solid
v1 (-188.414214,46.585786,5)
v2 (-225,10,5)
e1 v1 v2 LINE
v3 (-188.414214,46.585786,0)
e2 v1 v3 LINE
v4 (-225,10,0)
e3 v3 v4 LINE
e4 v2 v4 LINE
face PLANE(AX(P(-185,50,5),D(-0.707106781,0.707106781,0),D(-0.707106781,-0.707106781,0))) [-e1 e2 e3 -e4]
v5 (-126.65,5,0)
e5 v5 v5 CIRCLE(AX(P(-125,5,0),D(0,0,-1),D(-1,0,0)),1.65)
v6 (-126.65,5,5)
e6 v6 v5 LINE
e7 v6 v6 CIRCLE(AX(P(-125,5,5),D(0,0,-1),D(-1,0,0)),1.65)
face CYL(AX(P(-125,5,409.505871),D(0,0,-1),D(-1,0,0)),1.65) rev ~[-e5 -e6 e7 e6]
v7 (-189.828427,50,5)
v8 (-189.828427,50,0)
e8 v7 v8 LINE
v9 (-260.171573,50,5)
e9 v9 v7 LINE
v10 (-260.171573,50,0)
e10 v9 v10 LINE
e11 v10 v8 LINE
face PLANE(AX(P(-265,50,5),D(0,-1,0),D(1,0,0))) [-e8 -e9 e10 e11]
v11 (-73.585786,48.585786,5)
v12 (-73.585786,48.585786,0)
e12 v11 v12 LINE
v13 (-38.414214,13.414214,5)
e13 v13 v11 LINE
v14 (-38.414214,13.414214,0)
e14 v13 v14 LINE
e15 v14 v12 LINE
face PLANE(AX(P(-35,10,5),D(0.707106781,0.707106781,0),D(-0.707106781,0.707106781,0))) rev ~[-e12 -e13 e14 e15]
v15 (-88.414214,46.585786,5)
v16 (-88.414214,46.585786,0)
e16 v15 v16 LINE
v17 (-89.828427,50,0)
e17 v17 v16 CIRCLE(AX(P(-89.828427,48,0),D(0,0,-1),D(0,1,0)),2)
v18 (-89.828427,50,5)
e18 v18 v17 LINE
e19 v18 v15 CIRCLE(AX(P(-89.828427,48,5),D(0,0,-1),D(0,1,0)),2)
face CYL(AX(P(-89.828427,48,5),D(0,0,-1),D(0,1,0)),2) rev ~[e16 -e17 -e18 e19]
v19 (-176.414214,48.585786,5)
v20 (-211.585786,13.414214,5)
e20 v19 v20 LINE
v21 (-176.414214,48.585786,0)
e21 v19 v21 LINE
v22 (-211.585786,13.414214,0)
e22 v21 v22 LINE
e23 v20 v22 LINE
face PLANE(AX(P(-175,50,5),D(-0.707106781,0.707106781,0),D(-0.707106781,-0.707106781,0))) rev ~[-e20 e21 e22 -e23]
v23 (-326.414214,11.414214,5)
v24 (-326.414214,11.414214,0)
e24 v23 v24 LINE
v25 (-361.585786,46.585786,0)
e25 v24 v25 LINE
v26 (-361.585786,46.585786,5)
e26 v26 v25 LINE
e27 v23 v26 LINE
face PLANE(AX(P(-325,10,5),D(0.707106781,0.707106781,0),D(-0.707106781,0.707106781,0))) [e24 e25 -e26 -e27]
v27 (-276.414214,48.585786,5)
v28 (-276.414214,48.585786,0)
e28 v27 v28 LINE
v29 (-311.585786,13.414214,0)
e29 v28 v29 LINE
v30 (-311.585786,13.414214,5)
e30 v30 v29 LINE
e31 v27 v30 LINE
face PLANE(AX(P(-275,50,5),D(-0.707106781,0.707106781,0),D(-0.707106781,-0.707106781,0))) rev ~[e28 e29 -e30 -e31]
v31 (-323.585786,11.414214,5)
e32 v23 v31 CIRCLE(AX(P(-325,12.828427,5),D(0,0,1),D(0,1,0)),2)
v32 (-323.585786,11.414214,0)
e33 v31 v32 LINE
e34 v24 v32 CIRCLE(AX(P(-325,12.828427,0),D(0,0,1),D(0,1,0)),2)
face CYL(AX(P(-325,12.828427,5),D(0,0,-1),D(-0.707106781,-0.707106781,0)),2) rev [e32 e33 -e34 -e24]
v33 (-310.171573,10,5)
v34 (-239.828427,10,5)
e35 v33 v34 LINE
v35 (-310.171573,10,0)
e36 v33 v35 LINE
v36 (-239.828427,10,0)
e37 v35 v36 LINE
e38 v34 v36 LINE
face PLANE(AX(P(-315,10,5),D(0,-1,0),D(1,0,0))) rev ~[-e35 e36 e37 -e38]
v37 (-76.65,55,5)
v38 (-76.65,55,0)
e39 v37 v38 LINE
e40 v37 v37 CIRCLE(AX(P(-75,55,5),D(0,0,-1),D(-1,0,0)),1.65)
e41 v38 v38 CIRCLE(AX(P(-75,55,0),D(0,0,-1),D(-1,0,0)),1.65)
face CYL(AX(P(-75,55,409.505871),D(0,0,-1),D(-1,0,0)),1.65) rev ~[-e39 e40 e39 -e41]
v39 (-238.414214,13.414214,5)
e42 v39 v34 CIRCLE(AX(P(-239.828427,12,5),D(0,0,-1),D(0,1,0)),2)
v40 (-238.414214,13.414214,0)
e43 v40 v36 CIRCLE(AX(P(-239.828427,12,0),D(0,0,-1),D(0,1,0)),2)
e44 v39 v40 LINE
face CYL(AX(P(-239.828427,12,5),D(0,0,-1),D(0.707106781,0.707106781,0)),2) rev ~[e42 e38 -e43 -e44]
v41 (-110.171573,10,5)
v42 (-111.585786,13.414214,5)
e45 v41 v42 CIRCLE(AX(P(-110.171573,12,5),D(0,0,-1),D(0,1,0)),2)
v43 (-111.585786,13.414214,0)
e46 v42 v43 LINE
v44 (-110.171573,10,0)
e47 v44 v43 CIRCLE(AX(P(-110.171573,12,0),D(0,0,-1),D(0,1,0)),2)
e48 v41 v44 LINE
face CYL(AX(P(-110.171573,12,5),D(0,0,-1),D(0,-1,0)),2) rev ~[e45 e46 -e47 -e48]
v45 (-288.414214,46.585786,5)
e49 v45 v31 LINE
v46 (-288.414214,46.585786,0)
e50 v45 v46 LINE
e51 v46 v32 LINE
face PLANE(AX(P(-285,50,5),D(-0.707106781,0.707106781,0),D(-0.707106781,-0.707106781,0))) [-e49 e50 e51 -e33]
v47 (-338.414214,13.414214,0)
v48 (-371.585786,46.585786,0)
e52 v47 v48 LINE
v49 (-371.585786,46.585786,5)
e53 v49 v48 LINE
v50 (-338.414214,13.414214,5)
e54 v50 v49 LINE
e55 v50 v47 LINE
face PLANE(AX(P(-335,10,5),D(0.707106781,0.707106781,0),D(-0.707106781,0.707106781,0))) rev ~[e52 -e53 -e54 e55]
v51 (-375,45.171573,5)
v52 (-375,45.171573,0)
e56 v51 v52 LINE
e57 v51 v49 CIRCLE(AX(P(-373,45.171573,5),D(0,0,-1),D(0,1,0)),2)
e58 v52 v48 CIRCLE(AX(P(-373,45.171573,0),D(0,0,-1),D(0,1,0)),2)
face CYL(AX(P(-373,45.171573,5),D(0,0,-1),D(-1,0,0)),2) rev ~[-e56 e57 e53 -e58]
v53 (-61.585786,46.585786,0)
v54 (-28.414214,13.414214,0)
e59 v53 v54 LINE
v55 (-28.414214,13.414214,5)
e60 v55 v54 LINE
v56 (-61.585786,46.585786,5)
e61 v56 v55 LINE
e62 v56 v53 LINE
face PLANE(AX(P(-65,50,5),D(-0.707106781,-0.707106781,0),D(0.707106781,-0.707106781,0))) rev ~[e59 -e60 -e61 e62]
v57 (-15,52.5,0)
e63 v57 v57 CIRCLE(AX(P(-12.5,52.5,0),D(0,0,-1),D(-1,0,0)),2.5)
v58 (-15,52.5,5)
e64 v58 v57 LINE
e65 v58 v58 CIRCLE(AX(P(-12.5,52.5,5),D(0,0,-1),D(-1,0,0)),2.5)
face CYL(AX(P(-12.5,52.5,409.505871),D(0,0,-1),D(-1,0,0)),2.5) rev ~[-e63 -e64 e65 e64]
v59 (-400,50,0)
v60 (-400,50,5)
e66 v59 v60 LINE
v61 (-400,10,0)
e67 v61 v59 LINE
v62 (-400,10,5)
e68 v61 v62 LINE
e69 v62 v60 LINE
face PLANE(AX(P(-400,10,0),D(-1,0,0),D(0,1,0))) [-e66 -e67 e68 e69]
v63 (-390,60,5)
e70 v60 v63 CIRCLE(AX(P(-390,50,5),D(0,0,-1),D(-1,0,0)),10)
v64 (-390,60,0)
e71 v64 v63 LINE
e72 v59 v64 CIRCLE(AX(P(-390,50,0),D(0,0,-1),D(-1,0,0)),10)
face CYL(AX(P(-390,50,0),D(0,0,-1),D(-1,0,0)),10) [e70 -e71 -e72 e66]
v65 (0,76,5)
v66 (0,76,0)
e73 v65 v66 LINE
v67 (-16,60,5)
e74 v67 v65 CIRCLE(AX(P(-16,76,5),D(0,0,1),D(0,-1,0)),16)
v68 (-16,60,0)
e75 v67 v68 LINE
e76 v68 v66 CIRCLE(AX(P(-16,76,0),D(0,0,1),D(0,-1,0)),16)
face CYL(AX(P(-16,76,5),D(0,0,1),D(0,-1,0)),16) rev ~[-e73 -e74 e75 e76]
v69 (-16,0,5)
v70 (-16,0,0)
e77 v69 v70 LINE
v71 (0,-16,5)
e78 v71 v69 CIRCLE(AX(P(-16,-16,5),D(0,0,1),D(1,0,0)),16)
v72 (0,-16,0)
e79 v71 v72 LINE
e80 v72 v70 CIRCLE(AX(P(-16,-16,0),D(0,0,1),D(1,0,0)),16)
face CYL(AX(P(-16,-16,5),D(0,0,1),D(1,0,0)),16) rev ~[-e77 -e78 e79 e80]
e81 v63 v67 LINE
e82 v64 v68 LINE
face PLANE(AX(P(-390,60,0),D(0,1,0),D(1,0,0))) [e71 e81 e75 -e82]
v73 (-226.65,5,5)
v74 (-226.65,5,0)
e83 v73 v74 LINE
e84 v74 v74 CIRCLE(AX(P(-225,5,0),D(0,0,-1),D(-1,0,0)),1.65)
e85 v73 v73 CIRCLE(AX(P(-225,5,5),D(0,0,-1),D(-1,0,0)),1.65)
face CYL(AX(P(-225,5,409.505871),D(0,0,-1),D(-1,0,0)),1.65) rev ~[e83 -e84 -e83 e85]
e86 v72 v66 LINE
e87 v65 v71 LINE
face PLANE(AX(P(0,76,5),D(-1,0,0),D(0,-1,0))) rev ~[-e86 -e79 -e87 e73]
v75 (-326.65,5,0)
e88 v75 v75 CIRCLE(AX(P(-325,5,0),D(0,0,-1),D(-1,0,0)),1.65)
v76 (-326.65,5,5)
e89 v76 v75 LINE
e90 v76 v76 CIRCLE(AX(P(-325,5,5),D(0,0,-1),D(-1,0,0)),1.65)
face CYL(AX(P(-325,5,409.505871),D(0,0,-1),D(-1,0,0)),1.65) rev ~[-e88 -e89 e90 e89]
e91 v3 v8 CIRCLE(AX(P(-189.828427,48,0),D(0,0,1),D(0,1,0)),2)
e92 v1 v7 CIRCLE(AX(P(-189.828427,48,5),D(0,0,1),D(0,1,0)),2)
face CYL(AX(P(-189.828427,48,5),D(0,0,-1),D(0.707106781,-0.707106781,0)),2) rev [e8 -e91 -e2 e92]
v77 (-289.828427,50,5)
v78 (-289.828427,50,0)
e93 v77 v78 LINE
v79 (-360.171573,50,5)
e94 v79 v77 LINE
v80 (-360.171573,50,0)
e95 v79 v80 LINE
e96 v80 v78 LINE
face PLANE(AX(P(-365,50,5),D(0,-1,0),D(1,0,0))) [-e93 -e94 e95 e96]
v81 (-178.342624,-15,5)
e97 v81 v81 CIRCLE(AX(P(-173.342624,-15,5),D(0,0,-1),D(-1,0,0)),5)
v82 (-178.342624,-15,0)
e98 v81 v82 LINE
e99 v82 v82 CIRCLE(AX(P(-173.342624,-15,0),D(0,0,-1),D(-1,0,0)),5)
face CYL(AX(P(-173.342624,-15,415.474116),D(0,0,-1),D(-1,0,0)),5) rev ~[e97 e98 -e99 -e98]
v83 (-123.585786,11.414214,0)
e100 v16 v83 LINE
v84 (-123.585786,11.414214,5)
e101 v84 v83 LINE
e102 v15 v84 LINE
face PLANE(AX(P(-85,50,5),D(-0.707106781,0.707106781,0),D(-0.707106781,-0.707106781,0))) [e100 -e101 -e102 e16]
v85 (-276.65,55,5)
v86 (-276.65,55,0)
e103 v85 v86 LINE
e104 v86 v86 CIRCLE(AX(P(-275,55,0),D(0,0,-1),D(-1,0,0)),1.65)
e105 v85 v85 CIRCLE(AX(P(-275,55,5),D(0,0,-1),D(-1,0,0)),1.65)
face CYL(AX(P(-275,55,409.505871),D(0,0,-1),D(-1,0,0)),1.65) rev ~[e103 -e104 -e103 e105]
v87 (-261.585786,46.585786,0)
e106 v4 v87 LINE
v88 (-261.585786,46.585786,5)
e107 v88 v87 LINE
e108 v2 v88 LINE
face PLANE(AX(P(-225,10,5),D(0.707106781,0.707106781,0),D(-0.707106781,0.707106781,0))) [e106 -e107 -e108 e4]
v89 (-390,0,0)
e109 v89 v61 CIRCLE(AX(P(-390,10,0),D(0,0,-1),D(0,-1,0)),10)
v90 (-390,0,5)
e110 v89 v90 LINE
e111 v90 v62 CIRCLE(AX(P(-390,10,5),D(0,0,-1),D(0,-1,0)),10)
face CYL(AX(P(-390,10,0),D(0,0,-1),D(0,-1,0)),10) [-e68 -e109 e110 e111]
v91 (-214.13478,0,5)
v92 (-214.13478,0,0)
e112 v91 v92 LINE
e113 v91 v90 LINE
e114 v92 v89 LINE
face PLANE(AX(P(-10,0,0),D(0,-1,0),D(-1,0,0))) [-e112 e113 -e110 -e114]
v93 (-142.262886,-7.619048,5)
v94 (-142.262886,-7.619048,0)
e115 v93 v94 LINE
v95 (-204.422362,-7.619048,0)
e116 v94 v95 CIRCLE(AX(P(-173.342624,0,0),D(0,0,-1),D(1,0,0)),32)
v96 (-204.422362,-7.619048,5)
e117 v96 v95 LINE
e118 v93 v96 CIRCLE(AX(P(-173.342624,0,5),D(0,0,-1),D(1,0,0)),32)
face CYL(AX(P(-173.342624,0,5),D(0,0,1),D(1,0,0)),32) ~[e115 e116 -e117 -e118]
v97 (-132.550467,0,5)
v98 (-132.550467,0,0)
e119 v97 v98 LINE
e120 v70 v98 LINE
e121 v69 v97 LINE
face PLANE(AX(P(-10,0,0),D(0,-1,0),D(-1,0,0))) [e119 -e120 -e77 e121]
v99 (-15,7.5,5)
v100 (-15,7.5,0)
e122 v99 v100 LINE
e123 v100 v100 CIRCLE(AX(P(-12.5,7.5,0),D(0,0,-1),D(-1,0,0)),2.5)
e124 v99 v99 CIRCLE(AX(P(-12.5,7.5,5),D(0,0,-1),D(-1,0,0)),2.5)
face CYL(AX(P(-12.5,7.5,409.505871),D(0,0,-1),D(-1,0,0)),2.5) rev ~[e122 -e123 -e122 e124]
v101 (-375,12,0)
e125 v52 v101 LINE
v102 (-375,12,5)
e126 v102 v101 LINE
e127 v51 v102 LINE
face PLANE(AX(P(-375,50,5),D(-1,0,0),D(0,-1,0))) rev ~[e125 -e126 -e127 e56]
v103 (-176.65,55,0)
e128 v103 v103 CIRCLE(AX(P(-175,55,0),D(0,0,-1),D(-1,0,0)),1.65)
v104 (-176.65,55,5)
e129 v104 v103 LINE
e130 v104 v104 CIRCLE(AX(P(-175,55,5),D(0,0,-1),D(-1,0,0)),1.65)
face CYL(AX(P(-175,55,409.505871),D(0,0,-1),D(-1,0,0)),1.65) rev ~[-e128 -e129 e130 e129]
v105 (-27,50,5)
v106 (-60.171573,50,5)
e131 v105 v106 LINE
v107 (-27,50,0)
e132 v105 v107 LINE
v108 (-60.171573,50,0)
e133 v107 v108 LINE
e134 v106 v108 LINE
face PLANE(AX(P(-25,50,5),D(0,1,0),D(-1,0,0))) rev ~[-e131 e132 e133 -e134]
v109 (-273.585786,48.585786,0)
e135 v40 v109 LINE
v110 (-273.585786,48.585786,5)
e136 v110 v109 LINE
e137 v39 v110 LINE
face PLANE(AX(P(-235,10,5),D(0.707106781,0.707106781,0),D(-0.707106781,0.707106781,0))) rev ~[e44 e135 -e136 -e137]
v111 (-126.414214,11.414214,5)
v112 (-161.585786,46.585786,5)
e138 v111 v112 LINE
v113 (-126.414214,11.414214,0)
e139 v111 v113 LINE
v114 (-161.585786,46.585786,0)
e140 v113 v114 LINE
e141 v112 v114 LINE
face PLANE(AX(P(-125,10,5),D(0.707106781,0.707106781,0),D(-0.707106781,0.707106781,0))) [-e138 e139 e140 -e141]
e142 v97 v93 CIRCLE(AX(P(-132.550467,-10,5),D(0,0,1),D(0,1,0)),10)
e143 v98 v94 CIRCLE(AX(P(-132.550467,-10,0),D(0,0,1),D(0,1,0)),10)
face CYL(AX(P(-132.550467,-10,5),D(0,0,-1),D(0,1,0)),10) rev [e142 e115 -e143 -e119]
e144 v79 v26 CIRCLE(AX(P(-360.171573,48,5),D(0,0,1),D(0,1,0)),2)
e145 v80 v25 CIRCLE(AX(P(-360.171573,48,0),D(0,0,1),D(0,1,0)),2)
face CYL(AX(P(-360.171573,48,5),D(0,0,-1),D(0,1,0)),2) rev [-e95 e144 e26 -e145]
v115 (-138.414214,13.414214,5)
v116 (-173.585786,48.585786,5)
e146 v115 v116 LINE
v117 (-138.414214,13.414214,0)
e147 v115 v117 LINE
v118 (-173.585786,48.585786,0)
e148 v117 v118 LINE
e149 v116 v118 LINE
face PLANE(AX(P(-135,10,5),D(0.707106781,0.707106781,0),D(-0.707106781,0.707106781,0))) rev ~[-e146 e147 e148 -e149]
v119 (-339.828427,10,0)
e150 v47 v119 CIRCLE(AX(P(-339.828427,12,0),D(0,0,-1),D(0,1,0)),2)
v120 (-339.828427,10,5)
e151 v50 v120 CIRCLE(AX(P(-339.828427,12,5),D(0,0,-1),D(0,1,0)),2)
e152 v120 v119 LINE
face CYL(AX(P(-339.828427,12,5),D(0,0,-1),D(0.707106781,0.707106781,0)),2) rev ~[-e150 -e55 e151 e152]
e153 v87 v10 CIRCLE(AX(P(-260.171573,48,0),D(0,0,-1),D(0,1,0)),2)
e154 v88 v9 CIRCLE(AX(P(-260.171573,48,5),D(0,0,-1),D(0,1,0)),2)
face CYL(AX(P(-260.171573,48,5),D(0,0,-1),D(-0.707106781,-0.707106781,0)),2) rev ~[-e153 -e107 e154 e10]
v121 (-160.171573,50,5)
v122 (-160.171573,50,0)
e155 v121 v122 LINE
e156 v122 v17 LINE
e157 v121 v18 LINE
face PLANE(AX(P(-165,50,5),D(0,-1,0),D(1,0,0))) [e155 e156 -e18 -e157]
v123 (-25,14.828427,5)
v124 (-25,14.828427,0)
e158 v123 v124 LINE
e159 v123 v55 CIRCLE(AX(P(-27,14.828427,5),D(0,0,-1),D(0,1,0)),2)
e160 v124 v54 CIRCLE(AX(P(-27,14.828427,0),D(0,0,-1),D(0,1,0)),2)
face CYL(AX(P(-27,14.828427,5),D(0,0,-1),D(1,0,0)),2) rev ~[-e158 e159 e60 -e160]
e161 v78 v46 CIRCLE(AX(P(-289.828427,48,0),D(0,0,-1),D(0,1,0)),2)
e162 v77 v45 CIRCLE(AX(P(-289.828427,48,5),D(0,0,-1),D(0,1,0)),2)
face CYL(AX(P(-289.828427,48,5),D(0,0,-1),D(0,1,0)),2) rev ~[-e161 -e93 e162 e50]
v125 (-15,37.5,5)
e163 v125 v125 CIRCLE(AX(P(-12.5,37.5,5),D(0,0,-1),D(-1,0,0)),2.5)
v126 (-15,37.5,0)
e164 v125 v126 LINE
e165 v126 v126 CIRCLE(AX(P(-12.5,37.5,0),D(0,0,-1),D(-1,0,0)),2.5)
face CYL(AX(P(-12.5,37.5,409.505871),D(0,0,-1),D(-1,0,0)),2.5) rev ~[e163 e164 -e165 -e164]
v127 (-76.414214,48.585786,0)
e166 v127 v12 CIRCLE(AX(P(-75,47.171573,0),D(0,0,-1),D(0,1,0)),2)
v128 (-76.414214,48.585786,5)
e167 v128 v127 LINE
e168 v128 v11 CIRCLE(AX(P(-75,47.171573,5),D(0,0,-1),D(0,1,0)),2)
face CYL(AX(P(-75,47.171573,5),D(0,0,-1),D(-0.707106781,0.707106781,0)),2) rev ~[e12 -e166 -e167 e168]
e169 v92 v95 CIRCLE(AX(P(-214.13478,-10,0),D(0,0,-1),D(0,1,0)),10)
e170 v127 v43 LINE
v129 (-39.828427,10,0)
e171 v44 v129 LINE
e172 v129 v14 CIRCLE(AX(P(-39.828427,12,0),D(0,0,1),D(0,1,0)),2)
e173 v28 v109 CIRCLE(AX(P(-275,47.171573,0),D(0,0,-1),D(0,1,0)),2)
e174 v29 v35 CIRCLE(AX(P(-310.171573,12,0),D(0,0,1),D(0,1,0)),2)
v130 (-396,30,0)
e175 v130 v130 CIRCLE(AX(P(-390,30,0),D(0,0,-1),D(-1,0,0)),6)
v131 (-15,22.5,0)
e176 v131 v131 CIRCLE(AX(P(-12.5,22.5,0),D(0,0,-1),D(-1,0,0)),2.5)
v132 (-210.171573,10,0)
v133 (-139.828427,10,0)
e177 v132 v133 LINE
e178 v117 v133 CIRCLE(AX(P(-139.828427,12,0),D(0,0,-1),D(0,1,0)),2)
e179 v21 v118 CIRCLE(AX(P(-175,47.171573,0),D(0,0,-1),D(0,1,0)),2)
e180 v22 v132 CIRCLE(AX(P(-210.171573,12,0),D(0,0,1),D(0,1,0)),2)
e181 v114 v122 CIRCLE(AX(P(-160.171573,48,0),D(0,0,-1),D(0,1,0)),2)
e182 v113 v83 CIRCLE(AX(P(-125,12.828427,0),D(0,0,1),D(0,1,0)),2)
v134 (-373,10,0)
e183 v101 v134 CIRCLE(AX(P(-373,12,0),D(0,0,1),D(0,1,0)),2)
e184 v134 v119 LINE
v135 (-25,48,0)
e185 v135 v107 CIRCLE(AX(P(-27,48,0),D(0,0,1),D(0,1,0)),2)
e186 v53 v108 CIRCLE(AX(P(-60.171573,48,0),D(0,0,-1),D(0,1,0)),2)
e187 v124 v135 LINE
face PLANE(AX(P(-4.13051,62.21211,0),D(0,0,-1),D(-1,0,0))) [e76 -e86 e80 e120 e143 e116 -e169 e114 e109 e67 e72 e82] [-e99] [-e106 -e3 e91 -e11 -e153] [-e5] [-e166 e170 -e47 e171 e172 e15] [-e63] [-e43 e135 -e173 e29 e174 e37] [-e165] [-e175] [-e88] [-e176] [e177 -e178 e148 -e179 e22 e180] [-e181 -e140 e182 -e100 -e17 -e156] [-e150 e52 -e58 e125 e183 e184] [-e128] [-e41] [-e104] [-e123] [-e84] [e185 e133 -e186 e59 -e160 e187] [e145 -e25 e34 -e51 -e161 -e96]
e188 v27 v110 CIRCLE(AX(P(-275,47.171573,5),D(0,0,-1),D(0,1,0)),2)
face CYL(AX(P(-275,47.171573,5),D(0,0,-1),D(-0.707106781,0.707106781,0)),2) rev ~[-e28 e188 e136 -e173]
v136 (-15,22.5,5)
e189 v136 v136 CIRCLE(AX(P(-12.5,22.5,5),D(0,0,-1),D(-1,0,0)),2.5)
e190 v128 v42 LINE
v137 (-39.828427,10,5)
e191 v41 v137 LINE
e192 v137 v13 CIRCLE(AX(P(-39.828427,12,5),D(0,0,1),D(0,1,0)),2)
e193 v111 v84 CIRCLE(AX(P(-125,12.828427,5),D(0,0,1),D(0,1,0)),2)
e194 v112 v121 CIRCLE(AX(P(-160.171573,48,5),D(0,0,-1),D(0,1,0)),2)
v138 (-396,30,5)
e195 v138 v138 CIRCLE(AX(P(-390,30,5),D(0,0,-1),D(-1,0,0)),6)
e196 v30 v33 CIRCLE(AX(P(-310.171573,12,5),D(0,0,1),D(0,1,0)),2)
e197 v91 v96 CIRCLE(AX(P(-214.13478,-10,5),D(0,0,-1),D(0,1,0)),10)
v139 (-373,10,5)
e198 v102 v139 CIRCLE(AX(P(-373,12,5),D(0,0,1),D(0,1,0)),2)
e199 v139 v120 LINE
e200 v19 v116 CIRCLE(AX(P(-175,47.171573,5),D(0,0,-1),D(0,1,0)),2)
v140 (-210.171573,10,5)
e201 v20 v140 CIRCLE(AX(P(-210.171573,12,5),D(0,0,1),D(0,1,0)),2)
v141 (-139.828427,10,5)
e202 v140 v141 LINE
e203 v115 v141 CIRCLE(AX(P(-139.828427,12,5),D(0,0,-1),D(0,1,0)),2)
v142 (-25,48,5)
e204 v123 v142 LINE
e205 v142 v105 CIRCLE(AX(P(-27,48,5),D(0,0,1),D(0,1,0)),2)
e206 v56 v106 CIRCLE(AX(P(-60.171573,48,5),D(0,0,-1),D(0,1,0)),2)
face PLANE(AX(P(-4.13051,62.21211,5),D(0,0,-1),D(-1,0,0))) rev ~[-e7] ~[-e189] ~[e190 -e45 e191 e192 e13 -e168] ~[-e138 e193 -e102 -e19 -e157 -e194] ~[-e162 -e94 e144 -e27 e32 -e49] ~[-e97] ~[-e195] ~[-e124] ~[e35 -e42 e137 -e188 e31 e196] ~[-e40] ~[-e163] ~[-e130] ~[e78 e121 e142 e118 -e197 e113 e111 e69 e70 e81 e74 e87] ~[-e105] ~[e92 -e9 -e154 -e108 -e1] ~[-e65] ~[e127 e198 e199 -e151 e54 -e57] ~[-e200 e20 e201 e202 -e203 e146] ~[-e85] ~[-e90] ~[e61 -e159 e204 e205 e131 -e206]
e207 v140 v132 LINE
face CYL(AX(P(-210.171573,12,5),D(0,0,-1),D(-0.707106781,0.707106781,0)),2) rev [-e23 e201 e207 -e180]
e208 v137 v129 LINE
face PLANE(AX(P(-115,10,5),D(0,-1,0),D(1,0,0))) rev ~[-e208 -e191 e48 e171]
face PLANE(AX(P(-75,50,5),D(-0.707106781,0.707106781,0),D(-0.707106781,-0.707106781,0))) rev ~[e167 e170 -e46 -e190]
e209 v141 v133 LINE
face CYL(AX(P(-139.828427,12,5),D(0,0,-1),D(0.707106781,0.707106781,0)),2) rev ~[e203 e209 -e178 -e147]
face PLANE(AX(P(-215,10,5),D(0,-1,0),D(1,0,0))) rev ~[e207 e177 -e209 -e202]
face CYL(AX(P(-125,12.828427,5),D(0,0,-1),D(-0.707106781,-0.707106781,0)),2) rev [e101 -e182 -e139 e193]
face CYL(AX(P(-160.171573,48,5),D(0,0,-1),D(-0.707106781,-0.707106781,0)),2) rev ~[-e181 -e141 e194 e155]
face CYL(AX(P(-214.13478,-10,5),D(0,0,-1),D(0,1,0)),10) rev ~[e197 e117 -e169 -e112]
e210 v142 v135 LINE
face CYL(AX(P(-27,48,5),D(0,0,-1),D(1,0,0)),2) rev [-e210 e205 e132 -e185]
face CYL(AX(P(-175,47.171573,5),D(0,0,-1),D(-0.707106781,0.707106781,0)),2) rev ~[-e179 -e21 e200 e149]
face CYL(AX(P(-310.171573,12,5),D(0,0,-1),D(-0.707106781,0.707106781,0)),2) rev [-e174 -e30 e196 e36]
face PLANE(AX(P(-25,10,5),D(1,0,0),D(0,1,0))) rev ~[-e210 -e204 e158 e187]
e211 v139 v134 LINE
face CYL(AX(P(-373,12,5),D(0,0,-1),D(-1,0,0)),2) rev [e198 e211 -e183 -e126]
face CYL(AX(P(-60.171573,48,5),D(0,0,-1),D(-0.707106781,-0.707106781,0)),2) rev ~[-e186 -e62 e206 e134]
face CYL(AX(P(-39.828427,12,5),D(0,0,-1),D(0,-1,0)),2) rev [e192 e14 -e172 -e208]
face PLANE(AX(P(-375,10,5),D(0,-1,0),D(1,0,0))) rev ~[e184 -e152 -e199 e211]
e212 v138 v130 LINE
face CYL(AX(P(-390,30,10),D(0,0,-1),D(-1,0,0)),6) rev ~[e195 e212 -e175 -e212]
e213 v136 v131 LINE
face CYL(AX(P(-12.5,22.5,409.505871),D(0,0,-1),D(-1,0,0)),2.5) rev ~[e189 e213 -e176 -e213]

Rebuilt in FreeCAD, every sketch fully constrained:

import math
import FreeCAD as App
import Part
import Sketcher


def edges_at(feature, points):
    """Names of the edges that pass closest to the given points."""
    edges = feature.Shape.Edges
    near = lambda p: min(range(len(edges)), key=lambda i: edges[i].distToShape(Part.Vertex(*p))[0])
    return sorted({f"Edge{near(p) + 1}" for p in points})

doc = App.newDocument("Part")
body = doc.addObject("PartDesign::Body", "Body")

# Sketch on XY plane
sketch1 = body.newObject("Sketcher::SketchObject", "Sketch")
sketch1.AttachmentSupport = (doc.getObject("XY_Plane"), [""])
sketch1.MapMode = "FlatFace"
sketch1.addGeometry(Part.LineSegment(App.Vector(-390, 0, 0), App.Vector(-10, 0, 0)), False)
sketch1.addGeometry(Part.ArcOfCircle(Part.Circle(App.Vector(-10, 10, 0), App.Vector(0, 0, 1), 10), math.radians(-90), math.radians(0)), False)
sketch1.addGeometry(Part.LineSegment(App.Vector(0, 10, 0), App.Vector(0, 50, 0)), False)
sketch1.addGeometry(Part.ArcOfCircle(Part.Circle(App.Vector(-10, 50, 0), App.Vector(0, 0, 1), 10), math.radians(0), math.radians(90)), False)
sketch1.addGeometry(Part.LineSegment(App.Vector(-10, 60, 0), App.Vector(-390, 60, 0)), False)
sketch1.addGeometry(Part.ArcOfCircle(Part.Circle(App.Vector(-390, 50, 0), App.Vector(0, 0, 1), 10), math.radians(90), math.radians(180)), False)
sketch1.addGeometry(Part.LineSegment(App.Vector(-400, 50, 0), App.Vector(-400, 10, 0)), False)
sketch1.addGeometry(Part.ArcOfCircle(Part.Circle(App.Vector(-390, 10, 0), App.Vector(0, 0, 1), 10), math.radians(180), math.radians(270)), False)
sketch1.addConstraint(Sketcher.Constraint("Tangent", 0, 2, 1, 1))
sketch1.addConstraint(Sketcher.Constraint("Tangent", 1, 2, 2, 1))
sketch1.addConstraint(Sketcher.Constraint("Tangent", 2, 2, 3, 1))
sketch1.addConstraint(Sketcher.Constraint("Tangent", 3, 2, 4, 1))
sketch1.addConstraint(Sketcher.Constraint("Tangent", 4, 2, 5, 1))
sketch1.addConstraint(Sketcher.Constraint("Tangent", 5, 2, 6, 1))
sketch1.addConstraint(Sketcher.Constraint("Tangent", 6, 2, 7, 1))
sketch1.addConstraint(Sketcher.Constraint("Tangent", 7, 2, 0, 1))
sketch1.addConstraint(Sketcher.Constraint("Horizontal", 0))
sketch1.addConstraint(Sketcher.Constraint("Vertical", 2))
sketch1.addConstraint(Sketcher.Constraint("Horizontal", 4))
sketch1.addConstraint(Sketcher.Constraint("Vertical", 6))
sketch1.addConstraint(Sketcher.Constraint("Equal", 1, 3))
sketch1.addConstraint(Sketcher.Constraint("Equal", 3, 5))
sketch1.addConstraint(Sketcher.Constraint("Equal", 5, 7))
sketch1.addConstraint(Sketcher.Constraint("PointOnObject", 0, 2, -1))
sketch1.addConstraint(Sketcher.Constraint("PointOnObject", 1, 2, -2))
sketch1.addConstraint(Sketcher.Constraint("Radius", 1, 10.0))
sketch1.addConstraint(Sketcher.Constraint("DistanceX", 0, 1, 0, 2, 380.0))
sketch1.addConstraint(Sketcher.Constraint("DistanceY", 2, 1, 2, 2, 40.0))
pad1 = body.newObject("PartDesign::Pad", "Pad")
pad1.Profile = sketch1
pad1.Length = 5

# Sketch on XY plane
sketch2 = body.newObject("Sketcher::SketchObject", "Sketch001")
sketch2.AttachmentSupport = (doc.getObject("XY_Plane"), [""])
sketch2.MapMode = "FlatFace"
sketch2.AttachmentOffset = App.Placement(App.Vector(0, 0, 5), App.Rotation())
sketch2.addGeometry(Part.LineSegment(App.Vector(-375, 10, 0), App.Vector(-335, 10, 0)), False)
sketch2.addGeometry(Part.LineSegment(App.Vector(-335, 10, 0), App.Vector(-375, 50, 0)), False)
sketch2.addGeometry(Part.LineSegment(App.Vector(-375, 50, 0), App.Vector(-375, 10, 0)), False)
sketch2.addGeometry(Part.LineSegment(App.Vector(-315, 10, 0), App.Vector(-235, 10, 0)), False)
sketch2.addGeometry(Part.LineSegment(App.Vector(-235, 10, 0), App.Vector(-275, 50, 0)), False)
sketch2.addGeometry(Part.LineSegment(App.Vector(-275, 50, 0), App.Vector(-315, 10, 0)), False)
sketch2.addGeometry(Part.LineSegment(App.Vector(-215, 10, 0), App.Vector(-135, 10, 0)), False)
sketch2.addGeometry(Part.LineSegment(App.Vector(-135, 10, 0), App.Vector(-175, 50, 0)), False)
sketch2.addGeometry(Part.LineSegment(App.Vector(-175, 50, 0), App.Vector(-215, 10, 0)), False)
sketch2.addGeometry(Part.LineSegment(App.Vector(-35, 10, 0), App.Vector(-75, 50, 0)), False)
sketch2.addGeometry(Part.LineSegment(App.Vector(-75, 50, 0), App.Vector(-115, 10, 0)), False)
sketch2.addGeometry(Part.LineSegment(App.Vector(-115, 10, 0), App.Vector(-35, 10, 0)), False)
sketch2.addGeometry(Part.LineSegment(App.Vector(-25, 50, 0), App.Vector(-65, 50, 0)), False)
sketch2.addGeometry(Part.LineSegment(App.Vector(-65, 50, 0), App.Vector(-25, 10, 0)), False)
sketch2.addGeometry(Part.LineSegment(App.Vector(-25, 10, 0), App.Vector(-25, 50, 0)), False)
sketch2.addConstraint(Sketcher.Constraint("Coincident", 0, 2, 1, 1))
sketch2.addConstraint(Sketcher.Constraint("Coincident", 1, 2, 2, 1))
sketch2.addConstraint(Sketcher.Constraint("Coincident", 2, 2, 0, 1))
sketch2.addConstraint(Sketcher.Constraint("Coincident", 3, 2, 4, 1))
sketch2.addConstraint(Sketcher.Constraint("Coincident", 4, 2, 5, 1))
sketch2.addConstraint(Sketcher.Constraint("Coincident", 5, 2, 3, 1))
sketch2.addConstraint(Sketcher.Constraint("Coincident", 6, 2, 7, 1))
sketch2.addConstraint(Sketcher.Constraint("Coincident", 7, 2, 8, 1))
sketch2.addConstraint(Sketcher.Constraint("Coincident", 8, 2, 6, 1))
sketch2.addConstraint(Sketcher.Constraint("Coincident", 9, 2, 10, 1))
sketch2.addConstraint(Sketcher.Constraint("Coincident", 10, 2, 11, 1))
sketch2.addConstraint(Sketcher.Constraint("Coincident", 11, 2, 9, 1))
sketch2.addConstraint(Sketcher.Constraint("Coincident", 12, 2, 13, 1))
sketch2.addConstraint(Sketcher.Constraint("Coincident", 13, 2, 14, 1))
sketch2.addConstraint(Sketcher.Constraint("Coincident", 14, 2, 12, 1))
sketch2.addConstraint(Sketcher.Constraint("Horizontal", 0))
sketch2.addConstraint(Sketcher.Constraint("Vertical", 2))
sketch2.addConstraint(Sketcher.Constraint("Horizontal", 3))
sketch2.addConstraint(Sketcher.Constraint("Horizontal", 6))
sketch2.addConstraint(Sketcher.Constraint("Horizontal", 11))
sketch2.addConstraint(Sketcher.Constraint("Horizontal", 12))
sketch2.addConstraint(Sketcher.Constraint("Vertical", 14))
sketch2.addConstraint(Sketcher.Constraint("Parallel", 1, 4))
sketch2.addConstraint(Sketcher.Constraint("Perpendicular", 4, 5))
sketch2.addConstraint(Sketcher.Constraint("Perpendicular", 5, 7))
sketch2.addConstraint(Sketcher.Constraint("Perpendicular", 7, 8))
sketch2.addConstraint(Sketcher.Constraint("Perpendicular", 8, 9))
sketch2.addConstraint(Sketcher.Constraint("Perpendicular", 9, 10))
sketch2.addConstraint(Sketcher.Constraint("Perpendicular", 10, 13))
sketch2.addConstraint(Sketcher.Constraint("Horizontal", 2, 2, 3, 2))
sketch2.addConstraint(Sketcher.Constraint("Horizontal", 1, 2, 4, 2))
sketch2.addConstraint(Sketcher.Constraint("Horizontal", 5, 2, 6, 2))
sketch2.addConstraint(Sketcher.Constraint("Horizontal", 4, 2, 7, 2))
sketch2.addConstraint(Sketcher.Constraint("Horizontal", 7, 2, 9, 2))
sketch2.addConstraint(Sketcher.Constraint("Horizontal", 8, 2, 10, 2))
sketch2.addConstraint(Sketcher.Constraint("Horizontal", 9, 2, 12, 2))
sketch2.addConstraint(Sketcher.Constraint("Horizontal", 11, 2, 13, 2))
sketch2.addConstraint(Sketcher.Constraint("Equal", 12, 2))
sketch2.addConstraint(Sketcher.Constraint("DistanceX", 0, 1, 0, 2, 40.0))
sketch2.addConstraint(Sketcher.Constraint("DistanceX", 0, 2, -1, 1, 335.0))
sketch2.addConstraint(Sketcher.Constraint("DistanceY", -1, 1, 0, 2, 10.0))
sketch2.addConstraint(Sketcher.Constraint("DistanceX", 3, 2, -1, 1, 235.0))
sketch2.addConstraint(Sketcher.Constraint("DistanceX", 6, 2, -1, 1, 135.0))
sketch2.addConstraint(Sketcher.Constraint("DistanceX", 9, 2, -1, 1, 75.0))
sketch2.addConstraint(Sketcher.Constraint("DistanceX", 12, 2, -1, 1, 65.0))
pocket1 = body.newObject("PartDesign::Pocket", "Pocket")
pocket1.Profile = sketch2
pocket1.Length = 5

# Sketch on XY plane
sketch3 = body.newObject("Sketcher::SketchObject", "Sketch002")
sketch3.AttachmentSupport = (doc.getObject("XY_Plane"), [""])
sketch3.MapMode = "FlatFace"
sketch3.AttachmentOffset = App.Placement(App.Vector(0, 0, 5), App.Rotation())
sketch3.addGeometry(Part.LineSegment(App.Vector(-285, 50, 0), App.Vector(-365, 50, 0)), False)
sketch3.addGeometry(Part.LineSegment(App.Vector(-365, 50, 0), App.Vector(-325, 10, 0)), False)
sketch3.addGeometry(Part.LineSegment(App.Vector(-325, 10, 0), App.Vector(-285, 50, 0)), False)
sketch3.addConstraint(Sketcher.Constraint("Coincident", 0, 2, 1, 1))
sketch3.addConstraint(Sketcher.Constraint("Coincident", 1, 2, 2, 1))
sketch3.addConstraint(Sketcher.Constraint("Coincident", 2, 2, 0, 1))
sketch3.addConstraint(Sketcher.Constraint("Horizontal", 0))
sketch3.addConstraint(Sketcher.Constraint("Perpendicular", 1, 2))
sketch3.addConstraint(Sketcher.Constraint("Equal", 1, 2))
sketch3.addConstraint(Sketcher.Constraint("DistanceX", 0, 2, 0, 1, 80.0))
sketch3.addConstraint(Sketcher.Constraint("DistanceX", 0, 2, -1, 1, 365.0))
sketch3.addConstraint(Sketcher.Constraint("DistanceY", -1, 1, 0, 2, 50.0))
pocket2 = body.newObject("PartDesign::Pocket", "Pocket001")
pocket2.Profile = sketch3
pocket2.Type = "UpToFirst"

# Sketch on XY plane
sketch4 = body.newObject("Sketcher::SketchObject", "Sketch003")
sketch4.AttachmentSupport = (doc.getObject("XY_Plane"), [""])
sketch4.MapMode = "FlatFace"
sketch4.AttachmentOffset = App.Placement(App.Vector(0, 0, 5), App.Rotation())
sketch4.addGeometry(Part.LineSegment(App.Vector(-265, 50, 0), App.Vector(-225, 10, 0)), False)
sketch4.addGeometry(Part.LineSegment(App.Vector(-225, 10, 0), App.Vector(-185, 50, 0)), False)
sketch4.addGeometry(Part.LineSegment(App.Vector(-185, 50, 0), App.Vector(-265, 50, 0)), False)
sketch4.addConstraint(Sketcher.Constraint("Coincident", 0, 2, 1, 1))
sketch4.addConstraint(Sketcher.Constraint("Coincident", 1, 2, 2, 1))
sketch4.addConstraint(Sketcher.Constraint("Coincident", 2, 2, 0, 1))
sketch4.addConstraint(Sketcher.Constraint("Horizontal", 2))
sketch4.addConstraint(Sketcher.Constraint("Perpendicular", 0, 1))
sketch4.addConstraint(Sketcher.Constraint("Equal", 0, 1))
sketch4.addConstraint(Sketcher.Constraint("DistanceX", 2, 2, 2, 1, 80.0))
sketch4.addConstraint(Sketcher.Constraint("DistanceX", 0, 2, -1, 1, 225.0))
sketch4.addConstraint(Sketcher.Constraint("DistanceY", -1, 1, 0, 2, 10.0))
pocket3 = body.newObject("PartDesign::Pocket", "Pocket002")
pocket3.Profile = sketch4
pocket3.Type = "UpToFirst"

# Sketch on XY plane
sketch5 = body.newObject("Sketcher::SketchObject", "Sketch004")
sketch5.AttachmentSupport = (doc.getObject("XY_Plane"), [""])
sketch5.MapMode = "FlatFace"
sketch5.AttachmentOffset = App.Placement(App.Vector(0, 0, 5), App.Rotation())
sketch5.addGeometry(Part.LineSegment(App.Vector(-165, 50, 0), App.Vector(-125, 10, 0)), False)
sketch5.addGeometry(Part.LineSegment(App.Vector(-125, 10, 0), App.Vector(-85, 50, 0)), False)
sketch5.addGeometry(Part.LineSegment(App.Vector(-85, 50, 0), App.Vector(-165, 50, 0)), False)
sketch5.addConstraint(Sketcher.Constraint("Coincident", 0, 2, 1, 1))
sketch5.addConstraint(Sketcher.Constraint("Coincident", 1, 2, 2, 1))
sketch5.addConstraint(Sketcher.Constraint("Coincident", 2, 2, 0, 1))
sketch5.addConstraint(Sketcher.Constraint("Horizontal", 2))
sketch5.addConstraint(Sketcher.Constraint("Perpendicular", 0, 1))
sketch5.addConstraint(Sketcher.Constraint("Equal", 0, 1))
sketch5.addConstraint(Sketcher.Constraint("DistanceX", 2, 2, 2, 1, 80.0))
sketch5.addConstraint(Sketcher.Constraint("DistanceX", 0, 2, -1, 1, 125.0))
sketch5.addConstraint(Sketcher.Constraint("DistanceY", -1, 1, 0, 2, 10.0))
pocket4 = body.newObject("PartDesign::Pocket", "Pocket003")
pocket4.Profile = sketch5
pocket4.Type = "UpToFirst"
doc.recompute()

fillet = body.newObject("PartDesign::Fillet", "Fillet")
fillet.Base = (pocket4, edges_at(pocket4, [
    (-325, 10, 2.5),
    (-365, 50, 2.5),
    (-285, 50, 2.5),
    (-265, 50, 2.5),
    (-185, 50, 2.5),
    (-165, 50, 2.5),
    (-85, 50, 2.5),
    (-125, 10, 2.5),
    (-375, 50, 2.5),
    (-335, 10, 2.5),
    (-375, 10, 2.5),
    (-315, 10, 2.5),
    (-275, 50, 2.5),
    (-235, 10, 2.5),
    (-215, 10, 2.5),
    (-175, 50, 2.5),
    (-135, 10, 2.5),
    (-65, 50, 2.5),
    (-25, 50, 2.5),
    (-25, 10, 2.5),
    (-75, 50, 2.5),
    (-35, 10, 2.5),
    (-115, 10, 2.5),
]))
fillet.Radius = 2

# Sketch on XY plane
sketch6 = body.newObject("Sketcher::SketchObject", "Sketch005")
sketch6.AttachmentSupport = (doc.getObject("XY_Plane"), [""])
sketch6.MapMode = "FlatFace"
sketch6.AttachmentOffset = App.Placement(App.Vector(0, 0, 5), App.Rotation())
sketch6.addGeometry(Part.Circle(App.Vector(-12.5, 52.5, 0), App.Vector(0, 0, 1), 2.5), False)
sketch6.addGeometry(Part.Circle(App.Vector(-12.5, 37.5, 0), App.Vector(0, 0, 1), 2.5), False)
sketch6.addGeometry(Part.Circle(App.Vector(-12.5, 22.5, 0), App.Vector(0, 0, 1), 2.5), False)
sketch6.addGeometry(Part.Circle(App.Vector(-12.5, 7.5, 0), App.Vector(0, 0, 1), 2.5), False)
sketch6.addConstraint(Sketcher.Constraint("Equal", 0, 1))
sketch6.addConstraint(Sketcher.Constraint("Equal", 1, 2))
sketch6.addConstraint(Sketcher.Constraint("Equal", 2, 3))
sketch6.addConstraint(Sketcher.Constraint("Vertical", 0, 3, 1, 3))
sketch6.addConstraint(Sketcher.Constraint("Vertical", 1, 3, 2, 3))
sketch6.addConstraint(Sketcher.Constraint("Vertical", 2, 3, 3, 3))
sketch6.addConstraint(Sketcher.Constraint("Diameter", 0, 5.0))
sketch6.addConstraint(Sketcher.Constraint("DistanceY", 1, 3, 0, 3, 15.0))
sketch6.addConstraint(Sketcher.Constraint("DistanceY", 2, 3, 1, 3, 15.0))
sketch6.addConstraint(Sketcher.Constraint("DistanceY", 3, 3, 2, 3, 15.0))
sketch6.addConstraint(Sketcher.Constraint("DistanceX", 0, 3, -1, 1, 12.5))
sketch6.addConstraint(Sketcher.Constraint("DistanceY", -1, 1, 0, 3, 52.5))
doc.recompute()
hole = body.newObject("PartDesign::Hole", "Hole")
hole.Profile = sketch6
hole.ThreadType = "None"
hole.Diameter = 5
hole.DepthType = "ThroughAll"

# Sketch on XY plane
sketch7 = body.newObject("Sketcher::SketchObject", "Sketch006")
sketch7.AttachmentSupport = (doc.getObject("XY_Plane"), [""])
sketch7.MapMode = "FlatFace"
sketch7.AttachmentOffset = App.Placement(App.Vector(0, 0, 5), App.Rotation())
sketch7.addGeometry(Part.Circle(App.Vector(-225, 5, 0), App.Vector(0, 0, 1), 1.65), False)
sketch7.addGeometry(Part.Circle(App.Vector(-175, 55, 0), App.Vector(0, 0, 1), 1.65), False)
sketch7.addGeometry(Part.Circle(App.Vector(-125, 5, 0), App.Vector(0, 0, 1), 1.65), False)
sketch7.addGeometry(Part.Circle(App.Vector(-75, 55, 0), App.Vector(0, 0, 1), 1.65), False)
sketch7.addGeometry(Part.Circle(App.Vector(-275, 55, 0), App.Vector(0, 0, 1), 1.65), False)
sketch7.addGeometry(Part.Circle(App.Vector(-325, 5, 0), App.Vector(0, 0, 1), 1.65), False)
sketch7.addConstraint(Sketcher.Constraint("Equal", 0, 1))
sketch7.addConstraint(Sketcher.Constraint("Equal", 1, 2))
sketch7.addConstraint(Sketcher.Constraint("Equal", 2, 3))
sketch7.addConstraint(Sketcher.Constraint("Equal", 3, 4))
sketch7.addConstraint(Sketcher.Constraint("Equal", 4, 5))
sketch7.addConstraint(Sketcher.Constraint("Horizontal", 0, 3, 2, 3))
sketch7.addConstraint(Sketcher.Constraint("Horizontal", 1, 3, 3, 3))
sketch7.addConstraint(Sketcher.Constraint("Horizontal", 3, 3, 4, 3))
sketch7.addConstraint(Sketcher.Constraint("Horizontal", 2, 3, 5, 3))
sketch7.addConstraint(Sketcher.Constraint("Diameter", 0, 3.3))
sketch7.addConstraint(Sketcher.Constraint("DistanceX", 0, 3, -1, 1, 225.0))
sketch7.addConstraint(Sketcher.Constraint("DistanceY", -1, 1, 0, 3, 5.0))
sketch7.addConstraint(Sketcher.Constraint("DistanceX", 1, 3, -1, 1, 175.0))
sketch7.addConstraint(Sketcher.Constraint("DistanceY", -1, 1, 1, 3, 55.0))
sketch7.addConstraint(Sketcher.Constraint("DistanceX", 2, 3, -1, 1, 125.0))
sketch7.addConstraint(Sketcher.Constraint("DistanceX", 3, 3, -1, 1, 75.0))
sketch7.addConstraint(Sketcher.Constraint("DistanceX", 4, 3, -1, 1, 275.0))
sketch7.addConstraint(Sketcher.Constraint("DistanceX", 5, 3, -1, 1, 325.0))
doc.recompute()
hole2 = body.newObject("PartDesign::Hole", "Hole001")
hole2.Profile = sketch7
hole2.ThreadType = "None"
hole2.Diameter = 3.3
hole2.DepthType = "ThroughAll"

# Sketch on XY plane
sketch8 = body.newObject("Sketcher::SketchObject", "Sketch007")
sketch8.AttachmentSupport = (doc.getObject("XY_Plane"), [""])
sketch8.MapMode = "FlatFace"
sketch8.AttachmentOffset = App.Placement(App.Vector(0, 0, 5), App.Rotation())
sketch8.addGeometry(Part.LineSegment(App.Vector(-141.342624, 0, 0), App.Vector(-205.342624, 0, 0)), False)
sketch8.addGeometry(Part.ArcOfCircle(Part.Circle(App.Vector(-173.342624, 0, 0), App.Vector(0, 0, 1), 32), math.radians(180), math.radians(360)), False)
sketch8.addConstraint(Sketcher.Constraint("Coincident", 0, 1, 1, 2))
sketch8.addConstraint(Sketcher.Constraint("Coincident", 1, 1, 0, 2))
sketch8.addConstraint(Sketcher.Constraint("Horizontal", 0))
sketch8.addConstraint(Sketcher.Constraint("PointOnObject", 1, 3, -1))
sketch8.addConstraint(Sketcher.Constraint("PointOnObject", 0, 1, -1))
sketch8.addConstraint(Sketcher.Constraint("Radius", 1, 32.0))
sketch8.addConstraint(Sketcher.Constraint("DistanceX", 1, 3, -1, 1, 173.342624))
pad2 = body.newObject("PartDesign::Pad", "Pad001")
pad2.Profile = sketch8
pad2.Length = 5
pad2.Reversed = True
doc.recompute()

fillet2 = body.newObject("PartDesign::Fillet", "Fillet001")
fillet2.Base = (pad2, edges_at(pad2, [(-205.343, 0, 2.5), (-141.343, 0, 2.5)]))
fillet2.Radius = 10

# Sketch on XY plane
sketch9 = body.newObject("Sketcher::SketchObject", "Sketch008")
sketch9.AttachmentSupport = (doc.getObject("XY_Plane"), [""])
sketch9.MapMode = "FlatFace"
sketch9.AttachmentOffset = App.Placement(App.Vector(0, 0, 5), App.Rotation())
sketch9.addGeometry(Part.Circle(App.Vector(-173.342624, -15, 0), App.Vector(0, 0, 1), 5), False)
sketch9.addConstraint(Sketcher.Constraint("Diameter", 0, 10.0))
sketch9.addConstraint(Sketcher.Constraint("DistanceY", 0, 3, -1, 1, 15.0))
sketch9.addConstraint(Sketcher.Constraint("DistanceX", 0, 3, -1, 1, 173.342624))
doc.recompute()
hole3 = body.newObject("PartDesign::Hole", "Hole002")
hole3.Profile = sketch9
hole3.ThreadType = "None"
hole3.Diameter = 10
hole3.DepthType = "ThroughAll"

# Sketch on XY plane
sketch10 = body.newObject("Sketcher::SketchObject", "Sketch009")
sketch10.AttachmentSupport = (doc.getObject("XY_Plane"), [""])
sketch10.MapMode = "FlatFace"
sketch10.AttachmentOffset = App.Placement(App.Vector(0, 0, 5), App.Rotation())
sketch10.addGeometry(Part.LineSegment(App.Vector(0, 50, 0), App.Vector(0, 76, 0)), False)
sketch10.addGeometry(Part.ArcOfCircle(Part.Circle(App.Vector(-16, 76, 0), App.Vector(0, 0, 1), 16), math.radians(-90), math.radians(0)), False)
sketch10.addGeometry(Part.ArcOfCircle(Part.Circle(App.Vector(-16, 42.2, 0), App.Vector(0, 0, 1), 17.8), math.radians(25.989234), math.radians(90)), False)
sketch10.addGeometry(Part.LineSegment(App.Vector(0, -16, 0), App.Vector(0, 10, 0)), False)
sketch10.addGeometry(Part.ArcOfCircle(Part.Circle(App.Vector(-16, 17.8, 0), App.Vector(0, 0, 1), 17.8), math.radians(-90), math.radians(-25.989234)), False)
sketch10.addGeometry(Part.ArcOfCircle(Part.Circle(App.Vector(-16, -16, 0), App.Vector(0, 0, 1), 16), math.radians(0), math.radians(90)), False)
sketch10.addConstraint(Sketcher.Constraint("Tangent", 0, 2, 1, 2))
sketch10.addConstraint(Sketcher.Constraint("Tangent", 1, 1, 2, 2))
sketch10.addConstraint(Sketcher.Constraint("Coincident", 2, 1, 0, 1))
sketch10.addConstraint(Sketcher.Constraint("Coincident", 3, 2, 4, 2))
sketch10.addConstraint(Sketcher.Constraint("Tangent", 4, 1, 5, 2))
sketch10.addConstraint(Sketcher.Constraint("Tangent", 5, 1, 3, 1))
sketch10.addConstraint(Sketcher.Constraint("Vertical", 0))
sketch10.addConstraint(Sketcher.Constraint("Vertical", 3))
sketch10.addConstraint(Sketcher.Constraint("Equal", 2, 4))
sketch10.addConstraint(Sketcher.Constraint("Equal", 1, 5))
sketch10.addConstraint(Sketcher.Constraint("PointOnObject", 0, 2, -2))
sketch10.addConstraint(Sketcher.Constraint("PointOnObject", 3, 2, -2))
sketch10.addConstraint(Sketcher.Constraint("PointOnObject", 4, 1, -1))
sketch10.addConstraint(Sketcher.Constraint("Vertical", 1, 3, 2, 3))
sketch10.addConstraint(Sketcher.Constraint("Vertical", 2, 3, 4, 3))
sketch10.addConstraint(Sketcher.Constraint("Radius", 1, 16.0))
sketch10.addConstraint(Sketcher.Constraint("Radius", 2, 17.8))
sketch10.addConstraint(Sketcher.Constraint("DistanceY", -1, 1, 1, 3, 76.0))
pad3 = body.newObject("PartDesign::Pad", "Pad002")
pad3.Profile = sketch10
pad3.Length = 5
pad3.Reversed = True

# Sketch on XY plane
sketch11 = body.newObject("Sketcher::SketchObject", "Sketch010")
sketch11.AttachmentSupport = (doc.getObject("XY_Plane"), [""])
sketch11.MapMode = "FlatFace"
sketch11.AttachmentOffset = App.Placement(App.Vector(0, 0, 5), App.Rotation())
sketch11.addGeometry(Part.Circle(App.Vector(-390, 30, 0), App.Vector(0, 0, 1), 6), False)
sketch11.addConstraint(Sketcher.Constraint("Diameter", 0, 12.0))
sketch11.addConstraint(Sketcher.Constraint("DistanceX", 0, 3, -1, 1, 390.0))
sketch11.addConstraint(Sketcher.Constraint("DistanceY", -1, 1, 0, 3, 30.0))
doc.recompute()
hole4 = body.newObject("PartDesign::Hole", "Hole003")
hole4.Profile = sketch11
hole4.ThreadType = "None"
hole4.Diameter = 12
hole4.DepthType = "Dimension"
hole4.Depth = 5
hole4.DrillPoint = "Flat"

doc.recompute()
